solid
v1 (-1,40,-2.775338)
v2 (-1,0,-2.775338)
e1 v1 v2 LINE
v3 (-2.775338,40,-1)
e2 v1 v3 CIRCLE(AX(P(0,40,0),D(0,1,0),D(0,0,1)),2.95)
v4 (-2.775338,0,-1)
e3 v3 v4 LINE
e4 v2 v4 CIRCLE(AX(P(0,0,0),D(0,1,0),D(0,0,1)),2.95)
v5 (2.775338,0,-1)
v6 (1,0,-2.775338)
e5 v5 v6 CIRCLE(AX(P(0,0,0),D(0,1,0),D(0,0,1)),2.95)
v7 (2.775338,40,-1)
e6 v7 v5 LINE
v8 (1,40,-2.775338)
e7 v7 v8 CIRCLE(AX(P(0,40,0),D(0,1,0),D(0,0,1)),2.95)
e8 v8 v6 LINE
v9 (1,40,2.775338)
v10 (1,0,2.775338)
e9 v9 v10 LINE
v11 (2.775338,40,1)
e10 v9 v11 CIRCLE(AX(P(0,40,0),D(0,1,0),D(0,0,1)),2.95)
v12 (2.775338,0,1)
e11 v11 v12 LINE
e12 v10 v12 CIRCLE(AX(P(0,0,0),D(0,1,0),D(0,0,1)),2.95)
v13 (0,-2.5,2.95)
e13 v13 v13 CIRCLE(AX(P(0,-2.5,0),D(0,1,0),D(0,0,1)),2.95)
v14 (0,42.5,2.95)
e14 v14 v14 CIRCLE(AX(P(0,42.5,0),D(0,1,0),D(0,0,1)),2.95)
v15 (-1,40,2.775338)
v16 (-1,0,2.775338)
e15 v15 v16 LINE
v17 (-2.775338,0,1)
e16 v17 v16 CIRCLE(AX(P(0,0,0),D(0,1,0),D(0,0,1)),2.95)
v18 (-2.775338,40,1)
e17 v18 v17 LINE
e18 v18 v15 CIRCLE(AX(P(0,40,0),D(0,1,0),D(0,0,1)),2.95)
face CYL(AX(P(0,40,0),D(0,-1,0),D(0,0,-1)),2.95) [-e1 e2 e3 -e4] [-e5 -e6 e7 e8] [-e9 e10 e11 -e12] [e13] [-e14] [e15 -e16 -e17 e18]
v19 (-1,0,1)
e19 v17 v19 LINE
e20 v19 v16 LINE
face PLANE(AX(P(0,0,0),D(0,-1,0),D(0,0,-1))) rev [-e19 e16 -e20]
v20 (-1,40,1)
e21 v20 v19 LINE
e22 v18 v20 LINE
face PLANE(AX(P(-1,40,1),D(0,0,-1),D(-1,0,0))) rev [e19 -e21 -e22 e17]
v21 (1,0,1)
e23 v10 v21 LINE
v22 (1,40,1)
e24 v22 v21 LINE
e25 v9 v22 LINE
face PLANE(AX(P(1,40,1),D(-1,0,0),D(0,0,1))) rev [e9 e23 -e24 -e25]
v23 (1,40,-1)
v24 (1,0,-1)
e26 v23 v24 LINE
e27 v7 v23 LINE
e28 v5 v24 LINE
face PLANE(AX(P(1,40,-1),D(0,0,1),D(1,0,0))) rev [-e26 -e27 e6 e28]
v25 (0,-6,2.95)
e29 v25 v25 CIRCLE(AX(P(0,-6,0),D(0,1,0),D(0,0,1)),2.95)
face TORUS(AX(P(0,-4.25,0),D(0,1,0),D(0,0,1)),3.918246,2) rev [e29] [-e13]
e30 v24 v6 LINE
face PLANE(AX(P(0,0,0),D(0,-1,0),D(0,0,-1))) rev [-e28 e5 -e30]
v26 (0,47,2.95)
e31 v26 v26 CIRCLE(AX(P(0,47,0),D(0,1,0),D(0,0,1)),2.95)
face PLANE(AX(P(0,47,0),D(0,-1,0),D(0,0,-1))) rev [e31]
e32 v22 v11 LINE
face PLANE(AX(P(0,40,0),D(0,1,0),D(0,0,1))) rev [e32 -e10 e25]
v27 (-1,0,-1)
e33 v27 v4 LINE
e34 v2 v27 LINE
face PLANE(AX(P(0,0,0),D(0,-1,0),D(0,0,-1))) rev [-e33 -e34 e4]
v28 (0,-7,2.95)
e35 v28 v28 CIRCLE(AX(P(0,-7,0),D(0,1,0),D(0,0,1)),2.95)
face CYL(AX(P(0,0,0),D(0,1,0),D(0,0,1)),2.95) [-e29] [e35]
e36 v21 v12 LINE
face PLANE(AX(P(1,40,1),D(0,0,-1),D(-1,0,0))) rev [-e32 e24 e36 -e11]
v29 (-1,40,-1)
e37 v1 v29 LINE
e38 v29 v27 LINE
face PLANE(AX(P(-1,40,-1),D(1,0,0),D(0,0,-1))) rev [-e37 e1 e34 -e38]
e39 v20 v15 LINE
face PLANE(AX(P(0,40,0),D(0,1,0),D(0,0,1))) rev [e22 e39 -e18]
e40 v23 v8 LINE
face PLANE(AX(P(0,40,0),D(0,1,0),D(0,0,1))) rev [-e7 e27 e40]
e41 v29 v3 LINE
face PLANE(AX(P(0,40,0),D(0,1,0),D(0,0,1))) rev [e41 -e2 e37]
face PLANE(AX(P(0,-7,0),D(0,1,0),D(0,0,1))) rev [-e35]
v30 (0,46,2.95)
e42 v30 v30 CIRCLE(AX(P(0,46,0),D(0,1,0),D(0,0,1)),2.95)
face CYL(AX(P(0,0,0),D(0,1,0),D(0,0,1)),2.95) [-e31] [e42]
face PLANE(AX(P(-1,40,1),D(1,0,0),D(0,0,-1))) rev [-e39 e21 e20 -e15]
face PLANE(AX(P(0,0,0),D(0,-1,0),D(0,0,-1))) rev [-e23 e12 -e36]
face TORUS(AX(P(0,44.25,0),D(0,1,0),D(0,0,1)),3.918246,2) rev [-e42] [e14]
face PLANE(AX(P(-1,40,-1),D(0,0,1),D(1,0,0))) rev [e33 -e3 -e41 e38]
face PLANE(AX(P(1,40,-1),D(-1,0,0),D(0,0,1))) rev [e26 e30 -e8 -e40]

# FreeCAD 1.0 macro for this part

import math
import FreeCAD as App
import Part
import Sketcher
from FreeCAD import Vector

doc = App.newDocument("Part")
body = doc.addObject("PartDesign::Body", "Body")

# Sketch on XZ plane
sketch1 = body.newObject("Sketcher::SketchObject", "Sketch")
sketch1.AttachmentSupport = (doc.getObject("XZ_Plane"), [""])
sketch1.MapMode = "FlatFace"
sketch1.addGeometry([
    Part.LineSegment(Vector(1, -1, 0), Vector(1, -2.8, 0)),  # 0
    Part.ArcOfCircle(Part.Circle(Vector(0, 0, 0), Vector(0, 0, 1), 3), math.radians(-110), math.radians(-70)),  # 1
    Part.LineSegment(Vector(-1, -2.8, 0), Vector(-1, -1, 0)),  # 2
    Part.LineSegment(Vector(-1, -1, 0), Vector(-2.8, -1, 0)),  # 3
    Part.ArcOfCircle(Part.Circle(Vector(0, 0, 0), Vector(0, 0, 1), 3), math.radians(160), math.radians(200)),  # 4
    Part.LineSegment(Vector(-2.8, 1, 0), Vector(-1, 1, 0)),  # 5
    Part.LineSegment(Vector(-1, 1, 0), Vector(-1, 2.8, 0)),  # 6
    Part.ArcOfCircle(Part.Circle(Vector(0, 0, 0), Vector(0, 0, 1), 3), math.radians(70), math.radians(110)),  # 7
    Part.LineSegment(Vector(1, 2.8, 0), Vector(1, 1, 0)),  # 8
    Part.LineSegment(Vector(1, 1, 0), Vector(2.8, 1, 0)),  # 9
    Part.ArcOfCircle(Part.Circle(Vector(0, 0, 0), Vector(0, 0, 1), 3), math.radians(-20), math.radians(20)),  # 10
    Part.LineSegment(Vector(2.8, -1, 0), Vector(1, -1, 0)),  # 11
], False)
sketch1.addConstraint([
    Sketcher.Constraint("Coincident", 0, 2, 1, 2),
    Sketcher.Constraint("Coincident", 1, 1, 2, 1),
    Sketcher.Constraint("Coincident", 2, 2, 3, 1),
    Sketcher.Constraint("Coincident", 3, 2, 4, 2),
    Sketcher.Constraint("Coincident", 4, 1, 5, 1),
    Sketcher.Constraint("Coincident", 5, 2, 6, 1),
    Sketcher.Constraint("Coincident", 6, 2, 7, 2),
    Sketcher.Constraint("Coincident", 7, 1, 8, 1),
    Sketcher.Constraint("Coincident", 8, 2, 9, 1),
    Sketcher.Constraint("Coincident", 9, 2, 10, 2),
    Sketcher.Constraint("Coincident", 10, 1, 11, 1),
    Sketcher.Constraint("Coincident", 11, 2, 0, 1),
    Sketcher.Constraint("Vertical", 0),
    Sketcher.Constraint("Vertical", 2),
    Sketcher.Constraint("Horizontal", 3),
    Sketcher.Constraint("Horizontal", 5),
    Sketcher.Constraint("Vertical", 6),
    Sketcher.Constraint("Vertical", 8),
    Sketcher.Constraint("Horizontal", 9),
    Sketcher.Constraint("Horizontal", 11),
    Sketcher.Constraint("Coincident", 1, 3, -1, 1),
    Sketcher.Constraint("Coincident", 4, 3, -1, 1),
    Sketcher.Constraint("Coincident", 7, 3, -1, 1),
    Sketcher.Constraint("Coincident", 10, 3, -1, 1),
    Sketcher.Constraint("Equal", 1, 4),
    Sketcher.Constraint("Equal", 4, 7),
    Sketcher.Constraint("Equal", 7, 10),
    Sketcher.Constraint("Symmetric", 2, 2, 8, 2, -1, 1),
    Sketcher.Constraint("Symmetric", 5, 2, 11, 2, -1, 1),
    Sketcher.Constraint("Symmetric", 5, 2, 8, 2, -2),
    Sketcher.Constraint("Equal", 11, 0),
    Sketcher.Constraint("DistanceX", -1, 1, 0, 2, 1.0),
    Sketcher.Constraint("Radius", 1, 2.950003),
])
pad1 = body.newObject("PartDesign::Pad", "Pad")
pad1.Profile = sketch1
pad1.Length = 40
pad1.Reversed = True

# Sketch on YZ plane
sketch2 = body.newObject("Sketcher::SketchObject", "Sketch001")
sketch2.AttachmentSupport = (doc.getObject("YZ_Plane"), [""])
sketch2.MapMode = "FlatFace"
sketch2.addGeometry([
    Part.LineSegment(Vector(47, 0, 0), Vector(40, 0, 0)),  # 0
    Part.LineSegment(Vector(40, 0, 0), Vector(40, -3, 0)),  # 1
    Part.LineSegment(Vector(40, -3, 0), Vector(42.5, -3, 0)),  # 2
    Part.ArcOfCircle(Part.Circle(Vector(44.2, -3.9, 0), Vector(0, 0, 1), 2), math.radians(29), math.radians(151)),  # 3
    Part.LineSegment(Vector(46, -3, 0), Vector(47, -3, 0)),  # 4
    Part.LineSegment(Vector(47, -3, 0), Vector(47, 0, 0)),  # 5
    Part.LineSegment(Vector(0, 0, 0), Vector(-7, 0, 0)),  # 6
    Part.LineSegment(Vector(-7, 0, 0), Vector(-7, -3, 0)),  # 7
    Part.LineSegment(Vector(-7, -3, 0), Vector(-6, -3, 0)),  # 8
    Part.ArcOfCircle(Part.Circle(Vector(-4.2, -3.9, 0), Vector(0, 0, 1), 2), math.radians(29), math.radians(151)),  # 9
    Part.LineSegment(Vector(-2.5, -3, 0), Vector(0, -3, 0)),  # 10
    Part.LineSegment(Vector(0, -3, 0), Vector(0, 0, 0)),  # 11
], False)
sketch2.addConstraint([
    Sketcher.Constraint("Coincident", 0, 2, 1, 1),
    Sketcher.Constraint("Coincident", 1, 2, 2, 1),
    Sketcher.Constraint("Coincident", 2, 2, 3, 2),
    Sketcher.Constraint("Coincident", 3, 1, 4, 1),
    Sketcher.Constraint("Coincident", 4, 2, 5, 1),
    Sketcher.Constraint("Coincident", 5, 2, 0, 1),
    Sketcher.Constraint("Coincident", 6, 2, 7, 1),
    Sketcher.Constraint("Coincident", 7, 2, 8, 1),
    Sketcher.Constraint("Coincident", 8, 2, 9, 2),
    Sketcher.Constraint("Coincident", 9, 1, 10, 1),
    Sketcher.Constraint("Coincident", 10, 2, 11, 1),
    Sketcher.Constraint("Coincident", 11, 2, 6, 1),
    Sketcher.Constraint("Horizontal", 0),
    Sketcher.Constraint("Vertical", 1),
    Sketcher.Constraint("Horizontal", 2),
    Sketcher.Constraint("Horizontal", 4),
    Sketcher.Constraint("Vertical", 5),
    Sketcher.Constraint("Horizontal", 6),
    Sketcher.Constraint("Vertical", 7),
    Sketcher.Constraint("Horizontal", 8),
    Sketcher.Constraint("Horizontal", 10),
    Sketcher.Constraint("Vertical", 11),
    Sketcher.Constraint("Coincident", 11, 2, -1, 1),
    Sketcher.Constraint("Equal", 3, 9),
    Sketcher.Constraint("PointOnObject", 0, 2, -1),
    Sketcher.Constraint("Horizontal", 3, 3, 9, 3),
    Sketcher.Constraint("Horizontal", 2, 2, 3, 1),
    Sketcher.Constraint("Horizontal", 4, 2, 7, 2),
    Sketcher.Constraint("Horizontal", 8, 2, 9, 1),
    Sketcher.Constraint("Equal", 0, 6),
    Sketcher.Constraint("Equal", 4, 8),
    Sketcher.Constraint("Radius", 3, 2.0),
    Sketcher.Constraint("DistanceX", 0, 2, 0, 1, 7.0),
    Sketcher.Constraint("DistanceX", 4, 1, 4, 2, 1.0),
    Sketcher.Constraint("DistanceX", 2, 1, 2, 2, 2.5),
    Sketcher.Constraint("DistanceX", -1, 1, 0, 2, 40.0),
    Sketcher.Constraint("DistanceY", 1, 2, 1, 1, 2.95),
])
revolution = body.newObject("PartDesign::Revolution", "Revolution")
revolution.Profile = sketch2
revolution.ReferenceAxis = (sketch2, ["H_Axis"])
revolution.Angle = 360

doc.recompute()
